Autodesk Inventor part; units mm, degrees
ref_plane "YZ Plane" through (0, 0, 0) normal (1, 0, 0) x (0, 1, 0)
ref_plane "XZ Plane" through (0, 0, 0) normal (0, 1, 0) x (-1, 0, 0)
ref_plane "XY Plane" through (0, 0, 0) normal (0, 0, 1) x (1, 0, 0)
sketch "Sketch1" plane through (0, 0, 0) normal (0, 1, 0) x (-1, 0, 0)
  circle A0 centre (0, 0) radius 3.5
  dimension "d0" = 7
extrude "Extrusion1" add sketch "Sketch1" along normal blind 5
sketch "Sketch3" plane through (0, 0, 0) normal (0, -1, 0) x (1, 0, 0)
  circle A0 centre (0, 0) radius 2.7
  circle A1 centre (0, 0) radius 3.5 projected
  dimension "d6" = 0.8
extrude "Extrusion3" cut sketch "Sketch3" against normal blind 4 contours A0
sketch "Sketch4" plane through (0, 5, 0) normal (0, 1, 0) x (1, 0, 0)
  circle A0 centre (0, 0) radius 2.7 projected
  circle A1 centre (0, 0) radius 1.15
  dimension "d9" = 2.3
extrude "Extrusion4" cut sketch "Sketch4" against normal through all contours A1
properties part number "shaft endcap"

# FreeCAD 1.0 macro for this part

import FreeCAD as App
import Part
import Sketcher
from FreeCAD import Vector
Q = App.Units.Quantity

doc = App.newDocument("Part")
body = doc.addObject("PartDesign::Body", "Body")

sketch1 = body.newObject("Sketcher::SketchObject", "Sketch")
sketch1.AttachmentSupport = (doc.getObject("XZ_Plane"), [""])
sketch1.MapMode = "FlatFace"
sketch1.addGeometry(Part.Circle(Vector(0, 0, 0), Vector(0, 0, 1), 3.5), False)
sketch1.addConstraint(Sketcher.Constraint("Coincident", 0, 3, -1, 1))
sketch1.addConstraint(Sketcher.Constraint("Diameter", 0, Q("7 mm")))
pad1 = body.newObject("PartDesign::Pad", "Pad")
pad1.Profile = sketch1
pad1.Length = 5
pad1.Reversed = True

sketch2 = body.newObject("Sketcher::SketchObject", "Sketch001")
sketch2.AttachmentSupport = (doc.getObject("XZ_Plane"), [""])
sketch2.MapMode = "FlatFace"
sketch2.addGeometry(Part.Circle(Vector(0, 0, 0), Vector(0, 0, 1), 2.7), False)
sketch2.addConstraint(Sketcher.Constraint("Coincident", 0, 3, -1, 1))
sketch2.addConstraint(Sketcher.Constraint("Diameter", 0, Q("5.4 mm")))
pocket1 = body.newObject("PartDesign::Pocket", "Pocket")
pocket1.Profile = sketch2
pocket1.Length = 4

sketch3 = body.newObject("Sketcher::SketchObject", "Sketch002")
sketch3.AttachmentSupport = (doc.getObject("XZ_Plane"), [""])
sketch3.MapMode = "FlatFace"
sketch3.AttachmentOffset = App.Placement(Vector(0, 0, -5), App.Rotation())
sketch3.addGeometry(Part.Circle(Vector(0, 0, 0), Vector(0, 0, 1), 1.1), False)
sketch3.addConstraint(Sketcher.Constraint("Coincident", 0, 3, -1, 1))
sketch3.addConstraint(Sketcher.Constraint("Diameter", 0, Q("2.3 mm")))
pocket2 = body.newObject("PartDesign::Pocket", "Pocket001")
pocket2.Profile = sketch3
pocket2.Type = "ThroughAll"
pocket2.Reversed = True

doc.recompute()
